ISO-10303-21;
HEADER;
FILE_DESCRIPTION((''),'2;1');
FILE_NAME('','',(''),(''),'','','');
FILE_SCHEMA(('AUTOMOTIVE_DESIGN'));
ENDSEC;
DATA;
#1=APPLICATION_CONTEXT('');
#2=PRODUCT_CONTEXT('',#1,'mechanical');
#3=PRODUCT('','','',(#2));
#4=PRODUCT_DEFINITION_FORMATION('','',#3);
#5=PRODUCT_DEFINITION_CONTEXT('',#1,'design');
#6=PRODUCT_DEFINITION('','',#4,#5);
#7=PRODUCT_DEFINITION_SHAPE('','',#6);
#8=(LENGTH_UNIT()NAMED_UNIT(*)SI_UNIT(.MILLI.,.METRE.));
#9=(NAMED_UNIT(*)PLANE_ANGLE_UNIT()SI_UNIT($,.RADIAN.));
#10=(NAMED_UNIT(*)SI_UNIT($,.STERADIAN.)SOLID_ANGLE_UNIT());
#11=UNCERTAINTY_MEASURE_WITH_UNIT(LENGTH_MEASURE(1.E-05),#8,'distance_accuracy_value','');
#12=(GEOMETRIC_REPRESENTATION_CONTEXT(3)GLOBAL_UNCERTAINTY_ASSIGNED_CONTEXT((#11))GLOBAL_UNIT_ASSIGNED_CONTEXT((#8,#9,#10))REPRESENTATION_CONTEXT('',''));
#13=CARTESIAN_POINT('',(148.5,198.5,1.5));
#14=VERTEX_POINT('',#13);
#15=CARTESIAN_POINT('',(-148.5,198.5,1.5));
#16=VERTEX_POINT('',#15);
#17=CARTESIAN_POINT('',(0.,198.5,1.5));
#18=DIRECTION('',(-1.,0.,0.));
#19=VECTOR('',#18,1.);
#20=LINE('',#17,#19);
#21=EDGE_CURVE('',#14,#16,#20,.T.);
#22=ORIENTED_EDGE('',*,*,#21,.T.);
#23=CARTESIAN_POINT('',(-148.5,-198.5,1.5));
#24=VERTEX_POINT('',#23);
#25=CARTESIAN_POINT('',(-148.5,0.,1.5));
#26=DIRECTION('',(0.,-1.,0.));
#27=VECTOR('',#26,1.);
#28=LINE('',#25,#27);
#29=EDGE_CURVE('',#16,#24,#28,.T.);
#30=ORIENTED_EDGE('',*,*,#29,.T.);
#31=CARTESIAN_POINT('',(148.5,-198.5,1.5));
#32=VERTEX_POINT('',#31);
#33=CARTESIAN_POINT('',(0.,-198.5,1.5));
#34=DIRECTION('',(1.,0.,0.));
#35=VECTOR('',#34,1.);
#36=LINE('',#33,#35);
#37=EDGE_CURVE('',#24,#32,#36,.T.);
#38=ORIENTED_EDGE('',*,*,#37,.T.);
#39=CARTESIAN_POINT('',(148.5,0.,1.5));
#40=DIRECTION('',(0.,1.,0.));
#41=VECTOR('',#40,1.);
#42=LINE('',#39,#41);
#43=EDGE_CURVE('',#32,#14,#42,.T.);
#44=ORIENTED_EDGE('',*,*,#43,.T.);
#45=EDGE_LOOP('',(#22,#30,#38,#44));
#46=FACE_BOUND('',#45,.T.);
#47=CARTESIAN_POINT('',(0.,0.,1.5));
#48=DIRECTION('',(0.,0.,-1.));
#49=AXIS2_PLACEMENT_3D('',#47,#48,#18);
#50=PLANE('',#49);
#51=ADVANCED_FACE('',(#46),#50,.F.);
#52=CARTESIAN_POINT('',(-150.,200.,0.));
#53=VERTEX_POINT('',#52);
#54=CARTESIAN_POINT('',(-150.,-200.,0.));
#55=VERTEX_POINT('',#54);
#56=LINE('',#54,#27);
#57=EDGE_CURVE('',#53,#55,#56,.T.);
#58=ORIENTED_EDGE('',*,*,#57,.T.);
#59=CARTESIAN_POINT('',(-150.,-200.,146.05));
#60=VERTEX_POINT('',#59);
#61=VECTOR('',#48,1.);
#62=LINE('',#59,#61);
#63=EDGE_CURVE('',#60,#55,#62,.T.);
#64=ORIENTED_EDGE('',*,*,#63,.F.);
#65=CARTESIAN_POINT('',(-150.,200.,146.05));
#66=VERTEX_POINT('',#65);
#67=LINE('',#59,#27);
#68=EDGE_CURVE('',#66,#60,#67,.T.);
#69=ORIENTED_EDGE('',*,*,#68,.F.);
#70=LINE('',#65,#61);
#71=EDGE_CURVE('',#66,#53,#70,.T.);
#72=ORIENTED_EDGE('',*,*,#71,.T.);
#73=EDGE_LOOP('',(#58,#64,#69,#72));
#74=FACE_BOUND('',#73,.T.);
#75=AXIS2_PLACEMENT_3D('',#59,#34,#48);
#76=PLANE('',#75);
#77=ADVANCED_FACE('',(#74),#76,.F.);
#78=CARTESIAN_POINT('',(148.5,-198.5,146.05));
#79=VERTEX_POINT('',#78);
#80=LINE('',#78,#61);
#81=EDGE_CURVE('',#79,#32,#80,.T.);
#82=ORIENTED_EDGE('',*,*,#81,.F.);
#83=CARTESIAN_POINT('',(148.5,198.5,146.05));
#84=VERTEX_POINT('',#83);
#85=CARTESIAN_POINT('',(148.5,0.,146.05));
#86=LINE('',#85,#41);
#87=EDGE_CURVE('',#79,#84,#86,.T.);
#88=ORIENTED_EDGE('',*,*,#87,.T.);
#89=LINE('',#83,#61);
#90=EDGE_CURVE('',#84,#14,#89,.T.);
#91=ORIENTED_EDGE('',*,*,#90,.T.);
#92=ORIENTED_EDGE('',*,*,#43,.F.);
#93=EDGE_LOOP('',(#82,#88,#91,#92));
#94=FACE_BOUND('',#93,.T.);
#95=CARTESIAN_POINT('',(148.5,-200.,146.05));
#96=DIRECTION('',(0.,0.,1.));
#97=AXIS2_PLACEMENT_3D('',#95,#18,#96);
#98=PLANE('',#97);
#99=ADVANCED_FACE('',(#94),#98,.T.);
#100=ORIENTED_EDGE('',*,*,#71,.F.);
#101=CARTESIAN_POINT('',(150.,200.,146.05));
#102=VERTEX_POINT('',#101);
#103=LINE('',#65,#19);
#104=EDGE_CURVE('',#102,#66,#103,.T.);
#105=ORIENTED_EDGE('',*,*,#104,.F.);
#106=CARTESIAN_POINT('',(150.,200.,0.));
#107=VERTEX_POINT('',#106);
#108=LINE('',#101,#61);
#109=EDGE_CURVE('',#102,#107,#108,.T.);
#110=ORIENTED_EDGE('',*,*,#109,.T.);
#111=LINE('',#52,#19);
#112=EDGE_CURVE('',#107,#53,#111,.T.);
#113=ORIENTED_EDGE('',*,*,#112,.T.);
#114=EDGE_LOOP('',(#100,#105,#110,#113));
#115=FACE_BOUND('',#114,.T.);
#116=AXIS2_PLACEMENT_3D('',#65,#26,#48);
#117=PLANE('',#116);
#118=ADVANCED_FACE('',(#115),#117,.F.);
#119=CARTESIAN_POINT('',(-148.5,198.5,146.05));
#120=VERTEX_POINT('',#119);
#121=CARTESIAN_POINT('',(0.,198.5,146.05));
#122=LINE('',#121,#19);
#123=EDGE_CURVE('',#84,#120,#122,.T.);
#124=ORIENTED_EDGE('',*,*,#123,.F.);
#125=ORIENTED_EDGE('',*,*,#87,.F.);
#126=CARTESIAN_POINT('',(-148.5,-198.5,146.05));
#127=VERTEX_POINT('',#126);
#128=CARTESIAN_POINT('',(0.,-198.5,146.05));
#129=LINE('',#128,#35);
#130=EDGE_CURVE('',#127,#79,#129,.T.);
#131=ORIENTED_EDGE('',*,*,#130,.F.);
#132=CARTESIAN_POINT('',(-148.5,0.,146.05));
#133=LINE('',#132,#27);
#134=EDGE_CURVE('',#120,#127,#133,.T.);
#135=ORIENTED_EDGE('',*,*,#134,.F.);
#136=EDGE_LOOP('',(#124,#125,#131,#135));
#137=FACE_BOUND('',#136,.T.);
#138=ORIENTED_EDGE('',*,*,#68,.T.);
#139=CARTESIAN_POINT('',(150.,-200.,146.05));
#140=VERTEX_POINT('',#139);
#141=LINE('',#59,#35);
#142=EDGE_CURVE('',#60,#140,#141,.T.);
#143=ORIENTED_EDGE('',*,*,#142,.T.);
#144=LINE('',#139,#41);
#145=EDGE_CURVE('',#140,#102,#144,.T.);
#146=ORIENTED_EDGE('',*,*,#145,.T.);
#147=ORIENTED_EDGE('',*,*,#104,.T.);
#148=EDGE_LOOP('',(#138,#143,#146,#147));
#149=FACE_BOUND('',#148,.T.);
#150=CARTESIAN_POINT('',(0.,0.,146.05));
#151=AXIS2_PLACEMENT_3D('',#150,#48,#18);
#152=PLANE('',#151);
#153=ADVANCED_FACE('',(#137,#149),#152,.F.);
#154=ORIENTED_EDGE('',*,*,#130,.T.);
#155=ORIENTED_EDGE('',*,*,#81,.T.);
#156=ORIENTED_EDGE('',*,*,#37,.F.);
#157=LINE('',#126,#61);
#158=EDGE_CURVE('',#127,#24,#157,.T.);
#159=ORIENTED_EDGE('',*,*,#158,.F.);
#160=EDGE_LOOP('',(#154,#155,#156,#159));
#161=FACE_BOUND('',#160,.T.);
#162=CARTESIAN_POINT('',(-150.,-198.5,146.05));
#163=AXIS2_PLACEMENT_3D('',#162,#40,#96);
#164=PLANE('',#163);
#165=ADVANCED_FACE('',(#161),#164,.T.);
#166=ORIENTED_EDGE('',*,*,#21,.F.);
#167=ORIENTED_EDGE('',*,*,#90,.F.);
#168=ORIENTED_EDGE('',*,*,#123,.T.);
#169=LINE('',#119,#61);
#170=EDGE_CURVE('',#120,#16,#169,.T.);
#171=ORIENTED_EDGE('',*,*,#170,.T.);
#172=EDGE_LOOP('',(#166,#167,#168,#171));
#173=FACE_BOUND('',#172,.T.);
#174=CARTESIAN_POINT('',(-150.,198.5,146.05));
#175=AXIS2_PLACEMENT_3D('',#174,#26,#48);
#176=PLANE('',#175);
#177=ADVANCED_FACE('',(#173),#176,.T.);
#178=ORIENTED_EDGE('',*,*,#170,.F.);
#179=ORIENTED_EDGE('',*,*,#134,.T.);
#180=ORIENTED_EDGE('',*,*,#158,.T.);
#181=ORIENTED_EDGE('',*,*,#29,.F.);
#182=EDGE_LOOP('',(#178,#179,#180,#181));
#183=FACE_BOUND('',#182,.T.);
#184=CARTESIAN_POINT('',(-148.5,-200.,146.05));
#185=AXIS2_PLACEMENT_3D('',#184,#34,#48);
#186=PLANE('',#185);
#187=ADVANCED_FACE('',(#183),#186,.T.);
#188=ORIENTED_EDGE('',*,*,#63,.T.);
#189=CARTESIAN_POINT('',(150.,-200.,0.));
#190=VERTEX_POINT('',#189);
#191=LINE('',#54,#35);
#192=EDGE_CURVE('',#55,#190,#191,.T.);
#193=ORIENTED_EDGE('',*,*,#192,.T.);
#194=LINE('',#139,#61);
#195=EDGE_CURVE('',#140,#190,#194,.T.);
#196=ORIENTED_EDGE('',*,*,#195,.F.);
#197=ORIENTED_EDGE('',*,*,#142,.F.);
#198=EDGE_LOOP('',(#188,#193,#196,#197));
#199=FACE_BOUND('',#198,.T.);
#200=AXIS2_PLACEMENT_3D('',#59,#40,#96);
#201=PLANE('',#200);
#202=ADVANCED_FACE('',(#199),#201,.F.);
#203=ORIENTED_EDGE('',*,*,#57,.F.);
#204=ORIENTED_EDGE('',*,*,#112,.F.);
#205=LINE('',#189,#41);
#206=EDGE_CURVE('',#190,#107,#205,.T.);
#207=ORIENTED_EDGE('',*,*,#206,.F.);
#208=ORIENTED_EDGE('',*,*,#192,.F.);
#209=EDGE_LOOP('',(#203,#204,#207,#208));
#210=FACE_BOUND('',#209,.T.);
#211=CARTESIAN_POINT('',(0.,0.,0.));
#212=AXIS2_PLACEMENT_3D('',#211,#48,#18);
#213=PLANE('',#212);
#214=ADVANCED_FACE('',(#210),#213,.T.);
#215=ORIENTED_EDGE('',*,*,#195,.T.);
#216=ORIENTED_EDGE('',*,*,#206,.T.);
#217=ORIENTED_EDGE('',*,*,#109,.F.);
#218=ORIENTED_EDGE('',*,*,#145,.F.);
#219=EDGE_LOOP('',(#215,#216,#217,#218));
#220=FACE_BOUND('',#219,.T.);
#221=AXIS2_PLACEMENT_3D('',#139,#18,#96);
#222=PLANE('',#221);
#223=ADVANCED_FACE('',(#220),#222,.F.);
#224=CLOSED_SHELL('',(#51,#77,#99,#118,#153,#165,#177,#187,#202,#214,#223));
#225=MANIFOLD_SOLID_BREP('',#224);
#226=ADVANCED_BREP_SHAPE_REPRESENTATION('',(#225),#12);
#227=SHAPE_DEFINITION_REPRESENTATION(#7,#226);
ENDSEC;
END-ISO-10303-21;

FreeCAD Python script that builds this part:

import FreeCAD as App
import Part
import Sketcher

V = App.Vector


def faces_at(feature, points):
    """Names of the faces that lie closest to the given points."""
    faces = feature.Shape.Faces
    near = lambda p: min(range(len(faces)), key=lambda i: faces[i].distToShape(Part.Vertex(*p))[0])
    return sorted({f"Face{near(p) + 1}" for p in points})


def add_polygon(sketch, points):
    """Adds a closed chain of lines whose ends are joined by coincident constraints."""
    first, n = sketch.GeometryCount, len(points)
    for a, b in zip(points, points[1:] + points[:1]):
        sketch.addGeometry(Part.LineSegment(App.Vector(*a, 0), App.Vector(*b, 0)), False)
    for i in range(n):
        sketch.addConstraint(Sketcher.Constraint("Coincident", first + i, 2, first + (i + 1) % n, 1))

doc = App.newDocument("Part")
body = doc.addObject("PartDesign::Body", "Body")

# Sketch on XY plane
sketch1 = body.newObject("Sketcher::SketchObject", "Sketch")
sketch1.AttachmentSupport = (doc.getObject("XY_Plane"), [""])
sketch1.MapMode = "FlatFace"
add_polygon(sketch1, [(-150, 200), (-150, -200), (150, -200), (150, 200)])  # lines 0-3
sketch1.addConstraint([
    Sketcher.Constraint("Vertical", 0),
    Sketcher.Constraint("Horizontal", 1),
    Sketcher.Constraint("Vertical", 2),
    Sketcher.Constraint("Horizontal", 3),
    Sketcher.Constraint("Symmetric", 0, 2, 2, 2, -1, 1),
    Sketcher.Constraint("DistanceX", 1, 1, 1, 2, 300.0),
    Sketcher.Constraint("DistanceY", 0, 2, 0, 1, 400.0),
])
pad1 = body.newObject("PartDesign::Pad", "Pad")
pad1.Profile = sketch1
pad1.Length = 146.05
doc.recompute()

thickness = body.newObject("PartDesign::Thickness", "Thickness")
thickness.Base = (pad1, faces_at(pad1, [(0, 0, 146.05)]))
thickness.Value = 1.5
thickness.Reversed = True
thickness.Join = "Intersection"

doc.recompute()
